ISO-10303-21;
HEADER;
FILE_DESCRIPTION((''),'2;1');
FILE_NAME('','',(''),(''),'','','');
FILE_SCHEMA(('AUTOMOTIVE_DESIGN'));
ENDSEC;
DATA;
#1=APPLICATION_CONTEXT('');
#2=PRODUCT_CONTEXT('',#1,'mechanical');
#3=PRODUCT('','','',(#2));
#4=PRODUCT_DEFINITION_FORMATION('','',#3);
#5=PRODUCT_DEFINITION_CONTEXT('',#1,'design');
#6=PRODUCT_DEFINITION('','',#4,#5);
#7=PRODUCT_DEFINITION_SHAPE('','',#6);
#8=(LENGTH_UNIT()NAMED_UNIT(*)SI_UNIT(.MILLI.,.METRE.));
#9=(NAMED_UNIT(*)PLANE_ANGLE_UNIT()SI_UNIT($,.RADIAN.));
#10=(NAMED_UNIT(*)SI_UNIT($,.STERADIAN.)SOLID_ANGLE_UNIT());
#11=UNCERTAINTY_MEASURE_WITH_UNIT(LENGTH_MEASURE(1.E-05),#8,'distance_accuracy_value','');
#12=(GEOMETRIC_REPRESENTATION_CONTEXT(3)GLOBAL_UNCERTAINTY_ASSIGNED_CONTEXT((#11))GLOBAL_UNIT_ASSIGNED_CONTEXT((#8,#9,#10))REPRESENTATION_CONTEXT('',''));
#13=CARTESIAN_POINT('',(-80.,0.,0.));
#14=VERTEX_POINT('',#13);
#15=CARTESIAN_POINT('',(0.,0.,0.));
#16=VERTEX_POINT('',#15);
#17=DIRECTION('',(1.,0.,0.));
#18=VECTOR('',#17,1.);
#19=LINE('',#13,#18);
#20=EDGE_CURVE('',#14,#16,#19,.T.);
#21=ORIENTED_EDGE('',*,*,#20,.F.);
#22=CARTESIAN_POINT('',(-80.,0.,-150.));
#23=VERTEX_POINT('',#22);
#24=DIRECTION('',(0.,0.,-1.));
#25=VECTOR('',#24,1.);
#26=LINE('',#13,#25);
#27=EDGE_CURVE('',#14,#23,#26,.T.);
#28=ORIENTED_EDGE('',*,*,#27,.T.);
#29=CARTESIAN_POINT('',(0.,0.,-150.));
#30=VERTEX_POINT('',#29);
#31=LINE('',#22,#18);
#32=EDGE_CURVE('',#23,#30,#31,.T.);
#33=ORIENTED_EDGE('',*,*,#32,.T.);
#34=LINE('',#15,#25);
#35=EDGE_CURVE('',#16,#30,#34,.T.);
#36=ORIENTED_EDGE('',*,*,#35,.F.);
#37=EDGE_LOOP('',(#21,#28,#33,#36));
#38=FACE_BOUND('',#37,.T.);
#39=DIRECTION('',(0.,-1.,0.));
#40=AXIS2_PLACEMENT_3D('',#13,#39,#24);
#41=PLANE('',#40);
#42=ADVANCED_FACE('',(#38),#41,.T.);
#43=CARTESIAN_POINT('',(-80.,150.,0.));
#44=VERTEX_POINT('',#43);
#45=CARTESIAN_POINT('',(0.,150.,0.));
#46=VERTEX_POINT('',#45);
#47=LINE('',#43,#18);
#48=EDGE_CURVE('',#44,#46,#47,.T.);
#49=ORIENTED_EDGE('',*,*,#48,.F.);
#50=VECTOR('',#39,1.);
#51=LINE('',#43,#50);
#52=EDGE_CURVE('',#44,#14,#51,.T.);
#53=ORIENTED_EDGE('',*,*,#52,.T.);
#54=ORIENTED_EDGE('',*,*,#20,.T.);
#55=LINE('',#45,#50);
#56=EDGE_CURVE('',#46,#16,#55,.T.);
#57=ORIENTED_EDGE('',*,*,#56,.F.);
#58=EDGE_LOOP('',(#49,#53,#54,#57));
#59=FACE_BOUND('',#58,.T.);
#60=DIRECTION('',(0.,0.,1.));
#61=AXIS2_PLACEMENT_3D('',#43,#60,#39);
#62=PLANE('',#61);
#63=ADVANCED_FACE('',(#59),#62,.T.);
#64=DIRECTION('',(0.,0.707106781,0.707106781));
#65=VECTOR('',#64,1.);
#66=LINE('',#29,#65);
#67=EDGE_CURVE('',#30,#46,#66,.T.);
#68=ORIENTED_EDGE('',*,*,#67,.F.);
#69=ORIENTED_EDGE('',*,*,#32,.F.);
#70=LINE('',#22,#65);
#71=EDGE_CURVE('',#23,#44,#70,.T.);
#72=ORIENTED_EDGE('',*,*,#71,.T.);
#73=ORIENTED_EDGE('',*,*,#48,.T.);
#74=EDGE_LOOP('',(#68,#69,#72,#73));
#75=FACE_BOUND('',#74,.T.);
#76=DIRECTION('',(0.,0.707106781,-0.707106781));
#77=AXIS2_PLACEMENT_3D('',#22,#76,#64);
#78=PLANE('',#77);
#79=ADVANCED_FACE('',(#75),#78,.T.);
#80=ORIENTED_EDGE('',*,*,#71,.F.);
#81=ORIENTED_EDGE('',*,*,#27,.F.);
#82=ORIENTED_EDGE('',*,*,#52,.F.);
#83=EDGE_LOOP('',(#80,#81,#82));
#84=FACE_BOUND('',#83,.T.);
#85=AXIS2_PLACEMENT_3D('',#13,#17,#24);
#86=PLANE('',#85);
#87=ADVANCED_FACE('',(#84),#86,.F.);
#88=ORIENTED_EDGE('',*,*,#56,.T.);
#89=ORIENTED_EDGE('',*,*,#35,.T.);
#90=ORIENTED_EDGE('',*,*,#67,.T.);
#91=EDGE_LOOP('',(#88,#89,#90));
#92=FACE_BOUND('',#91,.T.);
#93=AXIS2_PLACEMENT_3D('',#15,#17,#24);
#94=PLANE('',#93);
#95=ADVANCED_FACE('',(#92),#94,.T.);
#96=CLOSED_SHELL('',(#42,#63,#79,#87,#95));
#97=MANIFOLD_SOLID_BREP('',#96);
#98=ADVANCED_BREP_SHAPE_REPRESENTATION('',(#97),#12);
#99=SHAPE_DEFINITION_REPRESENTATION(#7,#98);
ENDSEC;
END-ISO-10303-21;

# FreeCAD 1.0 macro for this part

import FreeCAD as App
import Part
import Sketcher

V = App.Vector
Q = App.Units.Quantity


def add_polygon(sketch, points):
    """Adds a closed chain of lines whose ends are joined by coincident constraints."""
    first, n = sketch.GeometryCount, len(points)
    for a, b in zip(points, points[1:] + points[:1]):
        sketch.addGeometry(Part.LineSegment(App.Vector(*a, 0), App.Vector(*b, 0)), False)
    for i in range(n):
        sketch.addConstraint(Sketcher.Constraint("Coincident", first + i, 2, first + (i + 1) % n, 1))

doc = App.newDocument("Part")
body = doc.addObject("PartDesign::Body", "Body")

# Sketch on YZ plane
sketch1 = body.newObject("Sketcher::SketchObject", "Sketch")
sketch1.AttachmentSupport = (doc.getObject("YZ_Plane"), [""])
sketch1.MapMode = "FlatFace"
add_polygon(sketch1, [(150, 0), (0, 0), (0, -150)])  # lines 0-2
sketch1.addConstraint([
    Sketcher.Constraint("Horizontal", 0),
    Sketcher.Constraint("Vertical", 1),
    Sketcher.Constraint("Coincident", 0, 2, -1, 1),
    Sketcher.Constraint("Equal", 0, 1),
    Sketcher.Constraint("DistanceX", 0, 2, 0, 1, Q("150 mm")),
])
pad1 = body.newObject("PartDesign::Pad", "Pad")
pad1.Profile = sketch1
pad1.Length = 80
pad1.Reversed = True

doc.recompute()
